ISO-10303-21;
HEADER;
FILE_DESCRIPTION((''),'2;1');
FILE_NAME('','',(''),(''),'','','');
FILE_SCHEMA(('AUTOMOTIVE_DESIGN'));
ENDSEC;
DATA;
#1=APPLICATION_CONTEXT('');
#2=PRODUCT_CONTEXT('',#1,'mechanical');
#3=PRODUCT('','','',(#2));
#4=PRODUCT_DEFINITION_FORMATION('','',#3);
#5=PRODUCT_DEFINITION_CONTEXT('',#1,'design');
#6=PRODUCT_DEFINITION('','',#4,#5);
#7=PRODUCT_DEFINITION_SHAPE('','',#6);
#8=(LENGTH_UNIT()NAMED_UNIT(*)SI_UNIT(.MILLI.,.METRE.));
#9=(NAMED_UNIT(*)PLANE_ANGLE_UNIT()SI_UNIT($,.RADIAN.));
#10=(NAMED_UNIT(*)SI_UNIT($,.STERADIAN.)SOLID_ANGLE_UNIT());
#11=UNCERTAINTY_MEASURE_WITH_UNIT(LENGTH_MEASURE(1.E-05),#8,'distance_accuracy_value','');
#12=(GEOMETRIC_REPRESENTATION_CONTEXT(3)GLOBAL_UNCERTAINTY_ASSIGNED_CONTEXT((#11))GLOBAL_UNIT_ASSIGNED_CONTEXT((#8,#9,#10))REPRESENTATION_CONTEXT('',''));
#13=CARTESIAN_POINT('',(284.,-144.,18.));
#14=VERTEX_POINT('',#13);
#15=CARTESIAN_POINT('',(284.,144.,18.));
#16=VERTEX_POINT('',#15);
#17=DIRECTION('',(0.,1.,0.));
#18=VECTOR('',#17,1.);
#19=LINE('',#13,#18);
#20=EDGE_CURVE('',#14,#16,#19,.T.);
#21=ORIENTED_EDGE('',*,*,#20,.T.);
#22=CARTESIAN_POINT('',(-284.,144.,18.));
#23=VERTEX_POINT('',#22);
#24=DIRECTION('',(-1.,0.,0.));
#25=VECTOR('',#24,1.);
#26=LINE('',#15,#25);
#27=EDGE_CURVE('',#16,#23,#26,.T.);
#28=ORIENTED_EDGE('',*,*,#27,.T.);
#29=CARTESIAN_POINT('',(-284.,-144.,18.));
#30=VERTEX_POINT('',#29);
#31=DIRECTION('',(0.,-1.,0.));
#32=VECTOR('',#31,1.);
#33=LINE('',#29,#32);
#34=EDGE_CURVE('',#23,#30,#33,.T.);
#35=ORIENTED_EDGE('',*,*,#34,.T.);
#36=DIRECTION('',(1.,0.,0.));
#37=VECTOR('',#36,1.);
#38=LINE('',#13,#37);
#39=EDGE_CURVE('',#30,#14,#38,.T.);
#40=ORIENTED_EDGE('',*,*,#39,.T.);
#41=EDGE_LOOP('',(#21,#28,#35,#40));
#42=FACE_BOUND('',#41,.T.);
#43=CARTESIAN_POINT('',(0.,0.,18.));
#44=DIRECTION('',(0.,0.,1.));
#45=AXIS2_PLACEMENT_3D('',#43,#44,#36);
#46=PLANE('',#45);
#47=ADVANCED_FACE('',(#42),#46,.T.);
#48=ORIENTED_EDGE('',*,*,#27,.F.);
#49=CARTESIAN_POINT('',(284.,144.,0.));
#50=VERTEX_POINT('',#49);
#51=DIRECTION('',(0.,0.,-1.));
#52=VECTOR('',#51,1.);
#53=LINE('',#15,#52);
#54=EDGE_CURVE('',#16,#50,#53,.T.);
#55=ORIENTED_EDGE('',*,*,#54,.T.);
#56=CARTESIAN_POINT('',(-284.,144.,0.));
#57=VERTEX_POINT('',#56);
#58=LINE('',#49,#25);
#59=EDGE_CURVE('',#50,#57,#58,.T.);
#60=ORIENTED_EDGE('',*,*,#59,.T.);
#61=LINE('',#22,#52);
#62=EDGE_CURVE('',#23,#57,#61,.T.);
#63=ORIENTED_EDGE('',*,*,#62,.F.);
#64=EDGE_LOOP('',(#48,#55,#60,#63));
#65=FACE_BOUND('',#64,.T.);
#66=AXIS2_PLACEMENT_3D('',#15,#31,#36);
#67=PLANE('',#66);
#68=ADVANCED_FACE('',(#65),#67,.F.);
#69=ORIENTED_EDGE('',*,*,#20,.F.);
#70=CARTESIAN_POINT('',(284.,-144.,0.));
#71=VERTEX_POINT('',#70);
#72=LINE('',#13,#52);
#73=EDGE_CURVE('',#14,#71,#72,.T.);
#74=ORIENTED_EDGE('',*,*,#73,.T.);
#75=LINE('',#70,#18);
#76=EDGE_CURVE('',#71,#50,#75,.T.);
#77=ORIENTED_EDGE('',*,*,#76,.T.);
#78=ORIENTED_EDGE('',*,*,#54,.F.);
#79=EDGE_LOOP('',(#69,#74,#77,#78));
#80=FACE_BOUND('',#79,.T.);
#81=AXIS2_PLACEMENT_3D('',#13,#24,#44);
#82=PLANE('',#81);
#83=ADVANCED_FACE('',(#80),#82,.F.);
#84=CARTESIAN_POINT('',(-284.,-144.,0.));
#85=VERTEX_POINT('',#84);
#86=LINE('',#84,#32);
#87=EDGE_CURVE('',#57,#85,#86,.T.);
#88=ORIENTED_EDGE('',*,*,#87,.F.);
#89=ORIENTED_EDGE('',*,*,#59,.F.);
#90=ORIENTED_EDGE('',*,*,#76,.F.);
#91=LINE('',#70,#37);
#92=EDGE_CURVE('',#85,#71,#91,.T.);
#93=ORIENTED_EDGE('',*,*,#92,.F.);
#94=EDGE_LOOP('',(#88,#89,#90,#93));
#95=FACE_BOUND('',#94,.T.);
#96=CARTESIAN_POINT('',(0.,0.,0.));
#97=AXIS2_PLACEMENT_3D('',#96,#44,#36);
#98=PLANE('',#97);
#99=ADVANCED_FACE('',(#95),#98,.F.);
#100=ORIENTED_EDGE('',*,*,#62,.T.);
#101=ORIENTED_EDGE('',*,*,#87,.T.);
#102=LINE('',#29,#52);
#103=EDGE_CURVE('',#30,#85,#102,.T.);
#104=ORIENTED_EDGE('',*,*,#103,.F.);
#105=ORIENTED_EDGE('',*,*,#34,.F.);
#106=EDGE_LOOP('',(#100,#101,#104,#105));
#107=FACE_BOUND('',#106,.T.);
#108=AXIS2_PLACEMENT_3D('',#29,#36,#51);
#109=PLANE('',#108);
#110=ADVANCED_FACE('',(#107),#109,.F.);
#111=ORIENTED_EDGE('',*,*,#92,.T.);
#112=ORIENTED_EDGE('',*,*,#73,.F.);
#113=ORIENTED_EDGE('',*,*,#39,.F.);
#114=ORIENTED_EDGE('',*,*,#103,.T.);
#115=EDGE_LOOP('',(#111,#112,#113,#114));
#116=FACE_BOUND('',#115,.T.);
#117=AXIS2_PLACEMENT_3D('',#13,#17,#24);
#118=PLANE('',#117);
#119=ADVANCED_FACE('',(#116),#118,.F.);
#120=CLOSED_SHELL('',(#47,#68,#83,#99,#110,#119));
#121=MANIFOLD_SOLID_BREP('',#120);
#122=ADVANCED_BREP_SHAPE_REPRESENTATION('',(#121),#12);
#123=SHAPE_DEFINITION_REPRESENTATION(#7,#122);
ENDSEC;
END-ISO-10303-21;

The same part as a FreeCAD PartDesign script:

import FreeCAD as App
import Part
import Sketcher
Q = App.Units.Quantity


def add_polygon(sketch, points):
    """Adds a closed chain of lines whose ends are joined by coincident constraints."""
    first, n = sketch.GeometryCount, len(points)
    for a, b in zip(points, points[1:] + points[:1]):
        sketch.addGeometry(Part.LineSegment(App.Vector(*a, 0), App.Vector(*b, 0)), False)
    for i in range(n):
        sketch.addConstraint(Sketcher.Constraint("Coincident", first + i, 2, first + (i + 1) % n, 1))

doc = App.newDocument("Part")
params = doc.addObject("Spreadsheet::Sheet", "Params")
for row, (alias, value) in enumerate([
    ("sketch1_width", "568 mm"),
    ("sketch1_height", "288 mm"),
    ("pad1_length", "18 mm"),
], start=1):
    params.set(f"A{row}", alias)
    params.set(f"B{row}", "=" + value)
    params.setAlias(f"B{row}", alias)

body = doc.addObject("PartDesign::Body", "Body")

# Sketch on XY plane
sketch1 = body.newObject("Sketcher::SketchObject", "Sketch")
sketch1.AttachmentSupport = (doc.getObject("XY_Plane"), [""])
sketch1.MapMode = "FlatFace"
add_polygon(sketch1, [(-284, 144), (-284, -144), (284, -144), (284, 144)])  # lines 0-3
sketch1.addConstraint([
    Sketcher.Constraint("Vertical", 0),
    Sketcher.Constraint("Horizontal", 1),
    Sketcher.Constraint("Vertical", 2),
    Sketcher.Constraint("Horizontal", 3),
    Sketcher.Constraint("Symmetric", 0, 2, 2, 2, -1, 1),
    Sketcher.Constraint("DistanceX", 1, 1, 1, 2, Q("568 mm")),
    Sketcher.Constraint("DistanceY", 0, 2, 0, 1, Q("288 mm")),
])
sketch1.setExpression("Constraints[9]", "Params.sketch1_width")
sketch1.setExpression("Constraints[10]", "Params.sketch1_height")
pad1 = body.newObject("PartDesign::Pad", "Pad")
pad1.Profile = sketch1
pad1.setExpression("Length", "Params.pad1_length")

doc.recompute()
